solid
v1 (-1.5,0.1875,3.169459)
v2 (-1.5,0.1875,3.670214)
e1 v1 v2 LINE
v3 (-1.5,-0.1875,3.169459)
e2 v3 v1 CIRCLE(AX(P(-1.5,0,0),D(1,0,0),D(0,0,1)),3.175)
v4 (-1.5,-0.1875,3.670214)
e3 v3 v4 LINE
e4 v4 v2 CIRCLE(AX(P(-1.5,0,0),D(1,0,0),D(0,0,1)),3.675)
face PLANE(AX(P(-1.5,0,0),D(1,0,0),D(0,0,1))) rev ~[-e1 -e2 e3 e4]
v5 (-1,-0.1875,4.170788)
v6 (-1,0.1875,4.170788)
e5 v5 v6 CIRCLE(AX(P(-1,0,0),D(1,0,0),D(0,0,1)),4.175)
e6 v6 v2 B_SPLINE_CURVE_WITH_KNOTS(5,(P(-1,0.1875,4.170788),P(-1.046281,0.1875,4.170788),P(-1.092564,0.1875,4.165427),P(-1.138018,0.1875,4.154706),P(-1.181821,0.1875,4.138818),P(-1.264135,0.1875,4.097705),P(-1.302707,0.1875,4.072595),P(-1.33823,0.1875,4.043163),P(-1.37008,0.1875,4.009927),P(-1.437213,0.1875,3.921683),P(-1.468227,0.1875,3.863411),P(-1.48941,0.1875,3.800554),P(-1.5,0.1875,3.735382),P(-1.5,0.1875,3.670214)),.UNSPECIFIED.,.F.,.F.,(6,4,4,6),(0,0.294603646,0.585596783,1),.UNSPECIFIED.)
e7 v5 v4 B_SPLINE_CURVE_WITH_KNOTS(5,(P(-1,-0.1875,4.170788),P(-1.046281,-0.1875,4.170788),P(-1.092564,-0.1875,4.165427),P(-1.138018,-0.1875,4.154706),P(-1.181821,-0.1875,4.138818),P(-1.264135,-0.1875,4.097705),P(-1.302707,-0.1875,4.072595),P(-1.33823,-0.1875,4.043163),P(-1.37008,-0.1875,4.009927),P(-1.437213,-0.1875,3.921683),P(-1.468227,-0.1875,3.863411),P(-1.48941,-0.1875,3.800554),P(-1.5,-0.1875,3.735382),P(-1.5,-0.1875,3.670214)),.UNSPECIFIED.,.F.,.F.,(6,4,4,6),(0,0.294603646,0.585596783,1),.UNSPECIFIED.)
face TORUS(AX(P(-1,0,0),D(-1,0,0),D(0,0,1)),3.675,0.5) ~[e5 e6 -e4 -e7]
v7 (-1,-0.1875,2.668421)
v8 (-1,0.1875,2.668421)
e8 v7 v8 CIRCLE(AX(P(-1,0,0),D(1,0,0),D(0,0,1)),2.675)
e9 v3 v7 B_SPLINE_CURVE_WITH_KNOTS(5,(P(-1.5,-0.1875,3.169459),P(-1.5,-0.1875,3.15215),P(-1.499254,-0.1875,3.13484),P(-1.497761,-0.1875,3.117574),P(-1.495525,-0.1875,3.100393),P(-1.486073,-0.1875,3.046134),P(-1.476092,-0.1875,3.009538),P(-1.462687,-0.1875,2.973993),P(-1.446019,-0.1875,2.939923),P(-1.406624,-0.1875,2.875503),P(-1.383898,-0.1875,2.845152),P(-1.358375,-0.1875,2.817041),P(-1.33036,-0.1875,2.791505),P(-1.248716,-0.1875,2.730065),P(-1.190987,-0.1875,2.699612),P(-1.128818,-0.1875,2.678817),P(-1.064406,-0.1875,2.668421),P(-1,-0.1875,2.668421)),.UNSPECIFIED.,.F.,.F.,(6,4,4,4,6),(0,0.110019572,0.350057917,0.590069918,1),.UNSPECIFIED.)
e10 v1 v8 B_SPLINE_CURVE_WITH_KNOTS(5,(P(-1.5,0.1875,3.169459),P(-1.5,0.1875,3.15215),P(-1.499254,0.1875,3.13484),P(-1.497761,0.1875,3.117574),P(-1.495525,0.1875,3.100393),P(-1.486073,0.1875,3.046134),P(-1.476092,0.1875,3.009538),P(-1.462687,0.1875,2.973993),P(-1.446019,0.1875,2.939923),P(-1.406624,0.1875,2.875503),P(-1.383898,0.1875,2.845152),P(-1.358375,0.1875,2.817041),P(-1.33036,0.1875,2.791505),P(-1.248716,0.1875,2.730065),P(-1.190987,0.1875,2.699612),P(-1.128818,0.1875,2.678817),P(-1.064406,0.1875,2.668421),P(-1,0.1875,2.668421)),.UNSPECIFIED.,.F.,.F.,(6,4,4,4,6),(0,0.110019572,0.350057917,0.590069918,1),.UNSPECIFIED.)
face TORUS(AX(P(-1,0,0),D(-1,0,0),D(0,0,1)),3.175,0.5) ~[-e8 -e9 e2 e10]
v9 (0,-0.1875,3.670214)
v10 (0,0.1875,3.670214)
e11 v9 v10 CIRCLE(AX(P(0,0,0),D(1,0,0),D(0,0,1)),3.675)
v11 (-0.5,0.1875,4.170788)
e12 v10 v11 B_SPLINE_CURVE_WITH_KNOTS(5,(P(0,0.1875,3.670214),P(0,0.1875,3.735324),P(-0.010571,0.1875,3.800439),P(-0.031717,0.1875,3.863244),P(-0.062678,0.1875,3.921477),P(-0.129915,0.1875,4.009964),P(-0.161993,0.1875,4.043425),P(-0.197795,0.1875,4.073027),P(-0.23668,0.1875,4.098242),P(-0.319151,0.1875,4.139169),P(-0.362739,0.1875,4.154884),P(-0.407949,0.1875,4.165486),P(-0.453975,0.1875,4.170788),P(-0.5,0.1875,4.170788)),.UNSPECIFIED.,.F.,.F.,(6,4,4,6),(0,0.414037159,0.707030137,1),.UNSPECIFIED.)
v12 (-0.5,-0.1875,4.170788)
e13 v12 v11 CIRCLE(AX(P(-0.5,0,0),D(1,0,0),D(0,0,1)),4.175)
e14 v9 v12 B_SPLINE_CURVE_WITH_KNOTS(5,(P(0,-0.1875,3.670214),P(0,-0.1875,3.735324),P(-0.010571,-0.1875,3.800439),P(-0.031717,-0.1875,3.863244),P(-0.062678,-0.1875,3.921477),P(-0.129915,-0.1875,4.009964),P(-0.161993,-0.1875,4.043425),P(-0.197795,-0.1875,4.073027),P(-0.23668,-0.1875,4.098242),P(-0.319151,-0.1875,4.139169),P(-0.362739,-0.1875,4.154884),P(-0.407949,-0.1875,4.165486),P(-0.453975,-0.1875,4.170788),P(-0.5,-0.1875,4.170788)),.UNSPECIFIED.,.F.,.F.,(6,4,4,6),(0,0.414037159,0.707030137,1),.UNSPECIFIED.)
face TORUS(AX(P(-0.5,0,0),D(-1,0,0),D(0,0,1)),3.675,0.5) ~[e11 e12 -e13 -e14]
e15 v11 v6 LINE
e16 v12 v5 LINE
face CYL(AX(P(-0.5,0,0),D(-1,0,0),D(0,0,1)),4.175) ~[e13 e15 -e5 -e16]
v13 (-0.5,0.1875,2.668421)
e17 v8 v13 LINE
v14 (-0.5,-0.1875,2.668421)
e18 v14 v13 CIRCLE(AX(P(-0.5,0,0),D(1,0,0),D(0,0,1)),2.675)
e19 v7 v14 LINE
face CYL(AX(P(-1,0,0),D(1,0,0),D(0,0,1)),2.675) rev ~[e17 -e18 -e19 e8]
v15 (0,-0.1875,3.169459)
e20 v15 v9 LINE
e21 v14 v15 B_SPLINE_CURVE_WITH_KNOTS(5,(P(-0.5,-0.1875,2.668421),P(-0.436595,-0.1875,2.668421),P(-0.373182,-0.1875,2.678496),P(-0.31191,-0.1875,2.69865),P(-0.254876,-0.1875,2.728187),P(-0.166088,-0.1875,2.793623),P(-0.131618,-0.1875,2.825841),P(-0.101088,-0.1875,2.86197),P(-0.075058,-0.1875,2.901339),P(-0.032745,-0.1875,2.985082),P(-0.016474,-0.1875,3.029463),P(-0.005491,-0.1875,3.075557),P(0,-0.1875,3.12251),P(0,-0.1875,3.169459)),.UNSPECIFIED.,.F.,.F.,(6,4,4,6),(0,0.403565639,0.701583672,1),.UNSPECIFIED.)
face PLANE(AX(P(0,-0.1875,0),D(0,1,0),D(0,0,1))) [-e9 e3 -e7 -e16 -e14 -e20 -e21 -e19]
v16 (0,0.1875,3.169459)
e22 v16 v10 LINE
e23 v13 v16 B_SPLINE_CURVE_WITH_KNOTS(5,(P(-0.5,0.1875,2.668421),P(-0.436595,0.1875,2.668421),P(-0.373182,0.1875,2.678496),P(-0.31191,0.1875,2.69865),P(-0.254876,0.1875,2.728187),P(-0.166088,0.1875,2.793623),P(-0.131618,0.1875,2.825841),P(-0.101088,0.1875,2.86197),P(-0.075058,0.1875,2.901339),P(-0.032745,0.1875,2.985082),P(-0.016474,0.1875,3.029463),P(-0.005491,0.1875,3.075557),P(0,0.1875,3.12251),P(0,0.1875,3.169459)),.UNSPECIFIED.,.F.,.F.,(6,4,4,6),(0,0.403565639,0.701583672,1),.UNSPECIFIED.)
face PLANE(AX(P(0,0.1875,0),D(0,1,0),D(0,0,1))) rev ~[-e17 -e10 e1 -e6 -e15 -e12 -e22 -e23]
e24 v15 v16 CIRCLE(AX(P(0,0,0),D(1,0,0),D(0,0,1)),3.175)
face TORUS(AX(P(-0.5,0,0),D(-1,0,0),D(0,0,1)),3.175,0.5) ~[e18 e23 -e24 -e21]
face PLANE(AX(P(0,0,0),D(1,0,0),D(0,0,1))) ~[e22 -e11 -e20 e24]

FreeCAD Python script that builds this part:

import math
import FreeCAD as App
import Part
import Sketcher

V = App.Vector
Q = App.Units.Quantity


def add_polygon(sketch, points):
    """Adds a closed chain of lines whose ends are joined by coincident constraints."""
    first, n = sketch.GeometryCount, len(points)
    for a, b in zip(points, points[1:] + points[:1]):
        sketch.addGeometry(Part.LineSegment(App.Vector(*a, 0), App.Vector(*b, 0)), False)
    for i in range(n):
        sketch.addConstraint(Sketcher.Constraint("Coincident", first + i, 2, first + (i + 1) % n, 1))

doc = App.newDocument("Part")
body = doc.addObject("PartDesign::Body", "Body")

# Sketch on XY plane
sketch1 = doc.addObject("Sketcher::SketchObject", "Sketch")
body.addObject(sketch1)
sketch1.AttachmentSupport = (doc.XY_Plane, [""])
sketch1.MapMode = "FlatFace"
sketch1.addGeometry(Part.LineSegment(V(0, 3.17, 0), V(0, 3.67, 0)), False)
sketch1.addGeometry(Part.ArcOfCircle(Part.Circle(V(-0.5, 3.68, 0), V(0, 0, 1), 0.5), math.radians(0), math.radians(90)), False)
sketch1.addGeometry(Part.LineSegment(V(-0.5, 4.17, 0), V(-1, 4.17, 0)), False)
sketch1.addGeometry(Part.ArcOfCircle(Part.Circle(V(-1, 3.68, 0), V(0, 0, 1), 0.5), math.radians(90), math.radians(180)), False)
sketch1.addGeometry(Part.LineSegment(V(-1.5, 3.67, 0), V(-1.5, 3.17, 0)), False)
sketch1.addGeometry(Part.ArcOfCircle(Part.Circle(V(-1, 3.17, 0), V(0, 0, 1), 0.5), math.radians(180), math.radians(270)), False)
sketch1.addGeometry(Part.LineSegment(V(-1, 2.67, 0), V(-0.5, 2.67, 0)), False)
sketch1.addGeometry(Part.ArcOfCircle(Part.Circle(V(-0.5, 3.17, 0), V(0, 0, 1), 0.5), math.radians(-90), math.radians(0)), False)
sketch1.addConstraint(Sketcher.Constraint("Tangent", 0, 2, 1, 1))
sketch1.addConstraint(Sketcher.Constraint("Tangent", 1, 2, 2, 1))
sketch1.addConstraint(Sketcher.Constraint("Tangent", 2, 2, 3, 1))
sketch1.addConstraint(Sketcher.Constraint("Tangent", 3, 2, 4, 1))
sketch1.addConstraint(Sketcher.Constraint("Tangent", 4, 2, 5, 1))
sketch1.addConstraint(Sketcher.Constraint("Tangent", 5, 2, 6, 1))
sketch1.addConstraint(Sketcher.Constraint("Tangent", 6, 2, 7, 1))
sketch1.addConstraint(Sketcher.Constraint("Tangent", 7, 2, 0, 1))
sketch1.addConstraint(Sketcher.Constraint("Vertical", 0))
sketch1.addConstraint(Sketcher.Constraint("Horizontal", 2))
sketch1.addConstraint(Sketcher.Constraint("Vertical", 4))
sketch1.addConstraint(Sketcher.Constraint("Horizontal", 6))
sketch1.addConstraint(Sketcher.Constraint("Equal", 1, 3))
sketch1.addConstraint(Sketcher.Constraint("Equal", 3, 5))
sketch1.addConstraint(Sketcher.Constraint("Equal", 5, 7))
sketch1.addConstraint(Sketcher.Constraint("PointOnObject", 0, 2, -2))
sketch1.addConstraint(Sketcher.Constraint("Equal", 6, 0))
sketch1.addConstraint(Sketcher.Constraint("Radius", 1, Q("0.5 mm")))
sketch1.addConstraint(Sketcher.Constraint("DistanceX", 2, 2, 2, 1, Q("0.5 mm")))
sketch1.addConstraint(Sketcher.Constraint("DistanceY", -1, 1, 1, 3, Q("3.675 mm")))
revolution = doc.addObject("PartDesign::Revolution", "Revolution")
body.addObject(revolution)
revolution.Profile = sketch1
revolution.ReferenceAxis = (sketch1, ["H_Axis"])
revolution.Angle = 360

# Sketch on YZ plane
sketch2 = doc.addObject("Sketcher::SketchObject", "Sketch001")
body.addObject(sketch2)
sketch2.AttachmentSupport = (doc.YZ_Plane, [""])
sketch2.MapMode = "FlatFace"
add_polygon(sketch2, [(0.19, 4.26), (0.19, 0), (-0.19, 0), (-0.19, 4.26)])  # lines 0-3
sketch2.addConstraint(Sketcher.Constraint("Vertical", 0))
sketch2.addConstraint(Sketcher.Constraint("Horizontal", 1))
sketch2.addConstraint(Sketcher.Constraint("Vertical", 2))
sketch2.addConstraint(Sketcher.Constraint("Horizontal", 3))
sketch2.addConstraint(Sketcher.Constraint("Symmetric", 0, 2, 1, 2, -1, 1))
sketch2.addConstraint(Sketcher.Constraint("DistanceX", 1, 2, 1, 1, Q("0.375 mm")))
sketch2.addConstraint(Sketcher.Constraint("DistanceY", 0, 2, 0, 1, Q("4.2585 mm")))
pocket1 = doc.addObject("PartDesign::Pocket", "Pocket")
body.addObject(pocket1)
pocket1.Profile = sketch2
pocket1.Type = "ThroughAll"

doc.recompute()
